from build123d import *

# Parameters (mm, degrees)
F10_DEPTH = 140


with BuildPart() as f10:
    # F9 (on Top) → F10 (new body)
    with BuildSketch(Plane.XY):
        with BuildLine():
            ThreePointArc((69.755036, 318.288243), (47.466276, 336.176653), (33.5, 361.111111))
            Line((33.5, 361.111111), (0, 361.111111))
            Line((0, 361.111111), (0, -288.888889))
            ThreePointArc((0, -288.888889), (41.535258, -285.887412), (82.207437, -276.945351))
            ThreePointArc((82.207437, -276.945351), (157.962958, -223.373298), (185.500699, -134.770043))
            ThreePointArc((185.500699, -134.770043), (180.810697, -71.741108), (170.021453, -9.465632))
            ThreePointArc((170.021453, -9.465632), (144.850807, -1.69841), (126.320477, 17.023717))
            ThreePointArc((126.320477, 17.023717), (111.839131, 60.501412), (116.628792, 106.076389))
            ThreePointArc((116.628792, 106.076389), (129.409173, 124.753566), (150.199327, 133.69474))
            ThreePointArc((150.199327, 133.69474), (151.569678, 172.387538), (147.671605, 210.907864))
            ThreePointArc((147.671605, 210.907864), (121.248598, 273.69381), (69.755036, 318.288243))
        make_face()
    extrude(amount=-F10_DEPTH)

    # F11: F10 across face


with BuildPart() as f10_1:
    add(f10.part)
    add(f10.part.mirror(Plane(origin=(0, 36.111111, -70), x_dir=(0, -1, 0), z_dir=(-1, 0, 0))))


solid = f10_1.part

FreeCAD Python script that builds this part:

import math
import FreeCAD as App
import Part
import Sketcher
Q = App.Units.Quantity

doc = App.newDocument("Part")
body = doc.addObject("PartDesign::Body", "Body")

# Sketch on XY plane
sketch1 = doc.addObject("Sketcher::SketchObject", "Sketch")
body.addObject(sketch1)
sketch1.AttachmentSupport = (doc.XY_Plane, [""])
sketch1.MapMode = "FlatFace"
sketch1.addGeometry(Part.ArcOfCircle(Part.Circle(App.Vector(104.632553, 384.57522, 0), App.Vector(0, 0, 1), 74.902633), math.radians(-161.744108), math.radians(-117.751524)), False)
sketch1.addGeometry(Part.LineSegment(App.Vector(33.5, 361.111111, 0), App.Vector(0, 361.111111, 0)), False)
sketch1.addGeometry(Part.LineSegment(App.Vector(0, 361.111111, 0), App.Vector(0, -288.888889, 0)), False)
sketch1.addGeometry(Part.ArcOfCircle(Part.Circle(App.Vector(-0.000004, 0.000027, 0), App.Vector(0, 0, 1), 288.888916), math.radians(-89.999999), math.radians(-73.4672)), False)
sketch1.addGeometry(Part.ArcOfCircle(Part.Circle(App.Vector(41.103719, -138.472676, 0), App.Vector(0, 0, 1), 144.444444), math.radians(-73.467199), math.radians(1.468859)), False)
sketch1.addGeometry(Part.ArcOfCircle(Part.Circle(App.Vector(-464.285694, -151.431884, 0), App.Vector(0, 0, 1), 649.999979), math.radians(1.468858), math.radians(12.61564)), False)
sketch1.addGeometry(Part.ArcOfCircle(Part.Circle(App.Vector(172.928514, 44.62297, 0), App.Vector(0, 0, 1), 54.166667), math.radians(-149.367827), math.radians(-93.076475)), False)
sketch1.addGeometry(Part.ArcOfCircle(Part.Circle(App.Vector(219.53654, 72.222221, 0), App.Vector(0, 0, 1), 108.333325), math.radians(161.790041), math.radians(210.632175)), False)
sketch1.addGeometry(Part.ArcOfCircle(Part.Circle(App.Vector(155.219199, 93.381078, 0), App.Vector(0, 0, 1), 40.624998), math.radians(97.097957), math.radians(161.790045)), False)
sketch1.addGeometry(Part.ArcOfCircle(Part.Circle(App.Vector(-132.653024, 163.082954, 0), App.Vector(0, 0, 1), 284.374963), math.radians(-5.931719), math.radians(9.681757)), False)
sketch1.addGeometry(Part.ArcOfCircle(Part.Circle(App.Vector(-0.000001, 185.714285, 0), App.Vector(0, 0, 1), 149.805272), math.radians(9.681757), math.radians(62.248476)), False)
sketch1.addConstraint(Sketcher.Constraint("Coincident", 0, 1, 1, 1))
sketch1.addConstraint(Sketcher.Constraint("Coincident", 1, 2, 2, 1))
sketch1.addConstraint(Sketcher.Constraint("Coincident", 2, 2, 3, 1))
sketch1.addConstraint(Sketcher.Constraint("Coincident", 3, 2, 4, 1))
sketch1.addConstraint(Sketcher.Constraint("Coincident", 4, 2, 5, 1))
sketch1.addConstraint(Sketcher.Constraint("Coincident", 5, 2, 6, 2))
sketch1.addConstraint(Sketcher.Constraint("Coincident", 6, 1, 7, 2))
sketch1.addConstraint(Sketcher.Constraint("Coincident", 7, 1, 8, 2))
sketch1.addConstraint(Sketcher.Constraint("Coincident", 8, 1, 9, 1))
sketch1.addConstraint(Sketcher.Constraint("Coincident", 9, 2, 10, 1))
sketch1.addConstraint(Sketcher.Constraint("Coincident", 10, 2, 0, 2))
sketch1.addConstraint(Sketcher.Constraint("Horizontal", 1))
sketch1.addConstraint(Sketcher.Constraint("Vertical", 2))
sketch1.addConstraint(Sketcher.Constraint("PointOnObject", 10, 3, -2))
sketch1.addConstraint(Sketcher.Constraint("PointOnObject", 1, 2, -2))
sketch1.addConstraint(Sketcher.Constraint("DistanceY", 2, 2, 2, 1, Q("650 mm")))
sketch1.addConstraint(Sketcher.Constraint("DistanceX", 1, 2, 1, 1, Q("33.5 mm")))
sketch1.addConstraint(Sketcher.Constraint("Radius", 5, Q("649.999979 mm")))
sketch1.addConstraint(Sketcher.Constraint("Radius", 0, Q("74.902633 mm")))
sketch1.addConstraint(Sketcher.Constraint("Radius", 3, Q("288.888916 mm")))
sketch1.addConstraint(Sketcher.Constraint("Radius", 4, Q("144.444444 mm")))
sketch1.addConstraint(Sketcher.Constraint("Radius", 6, Q("54.166667 mm")))
sketch1.addConstraint(Sketcher.Constraint("Radius", 7, Q("108.333325 mm")))
sketch1.addConstraint(Sketcher.Constraint("Radius", 8, Q("40.624998 mm")))
sketch1.addConstraint(Sketcher.Constraint("Radius", 9, Q("284.374963 mm")))
sketch1.addConstraint(Sketcher.Constraint("Radius", 10, Q("149.805272 mm")))
sketch1.addConstraint(Sketcher.Constraint("DistanceY", 7, 3, 0, 3, Q("312.352998 mm")))
sketch1.addConstraint(Sketcher.Constraint("DistanceX", -1, 1, 8, 3, Q("155.219199 mm")))
sketch1.addConstraint(Sketcher.Constraint("DistanceX", -1, 1, 4, 2, Q("185.500699 mm")))
sketch1.addConstraint(Sketcher.Constraint("DistanceY", -1, 1, 0, 3, Q("384.57522 mm")))
sketch1.addConstraint(Sketcher.Constraint("DistanceX", -1, 1, 4, 3, Q("41.103719 mm")))
sketch1.addConstraint(Sketcher.Constraint("DistanceY", -1, 1, 6, 3, Q("44.62297 mm")))
sketch1.addConstraint(Sketcher.Constraint("DistanceX", -1, 1, 7, 3, Q("219.53654 mm")))
sketch1.addConstraint(Sketcher.Constraint("DistanceY", -1, 1, 0, 1, Q("361.111111 mm")))
sketch1.addConstraint(Sketcher.Constraint("DistanceY", 3, 2, -1, 1, Q("276.945351 mm")))
sketch1.addConstraint(Sketcher.Constraint("DistanceY", -1, 1, 7, 1, Q("106.076389 mm")))
sketch1.addConstraint(Sketcher.Constraint("DistanceY", -1, 1, 8, 1, Q("133.69474 mm")))
sketch1.addConstraint(Sketcher.Constraint("DistanceX", 5, 3, 3, 3, Q("464.285689 mm")))
sketch1.addConstraint(Sketcher.Constraint("DistanceY", 5, 3, 3, 3, Q("151.431911 mm")))
sketch1.addConstraint(Sketcher.Constraint("DistanceY", 5, 2, 6, 1, Q("26.489349 mm")))
sketch1.addConstraint(Sketcher.Constraint("DistanceY", 10, 3, 9, 2, Q("25.193579 mm")))
sketch1.addConstraint(Sketcher.Constraint("DistanceY", 10, 2, 0, 1, Q("42.822868 mm")))
pad1 = doc.addObject("PartDesign::Pad", "Pad")
body.addObject(pad1)
pad1.Profile = sketch1
pad1.Length = 140
pad1.Reversed = True
body2 = doc.addObject("PartDesign::Body", "Body001")
doc.recompute()

body2.BaseFeature = body
doc.recompute()

mirroring = doc.addObject("Part::Mirroring", "Mirroring")
mirroring.Source = body
mirroring.Base = App.Vector(0, 36.111111, -70)
mirroring.Normal = App.Vector(-1, 0, 0)
body3 = doc.addObject("PartDesign::Body", "Body002")
body3.BaseFeature = mirroring
boolean = doc.addObject("PartDesign::Boolean", "Boolean")
body2.addObject(boolean)
boolean.Type = "Fuse"
boolean.addObjects([body3])
doc.recompute()
mirroring.Visibility = False

doc.recompute()
